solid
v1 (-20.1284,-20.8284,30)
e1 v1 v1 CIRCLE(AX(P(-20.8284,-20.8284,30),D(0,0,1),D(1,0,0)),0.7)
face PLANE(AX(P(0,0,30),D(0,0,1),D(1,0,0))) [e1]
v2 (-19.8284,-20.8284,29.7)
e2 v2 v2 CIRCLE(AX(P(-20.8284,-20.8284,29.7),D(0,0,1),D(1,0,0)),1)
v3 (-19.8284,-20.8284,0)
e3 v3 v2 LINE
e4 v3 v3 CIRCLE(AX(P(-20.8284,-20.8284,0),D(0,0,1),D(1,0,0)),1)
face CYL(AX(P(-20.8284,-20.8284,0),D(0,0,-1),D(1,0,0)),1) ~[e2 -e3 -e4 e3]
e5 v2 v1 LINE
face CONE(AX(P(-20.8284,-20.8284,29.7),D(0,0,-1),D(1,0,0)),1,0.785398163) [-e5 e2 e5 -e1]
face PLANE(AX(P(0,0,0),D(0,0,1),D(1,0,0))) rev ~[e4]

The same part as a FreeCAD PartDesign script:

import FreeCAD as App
import Part
import Sketcher
from FreeCAD import Vector
Q = App.Units.Quantity


def edges_at(feature, points):
    """Names of the edges that pass closest to the given points."""
    edges = feature.Shape.Edges
    near = lambda p: min(range(len(edges)), key=lambda i: edges[i].distToShape(Part.Vertex(*p))[0])
    return sorted({f"Edge{near(p) + 1}" for p in points})

doc = App.newDocument("Part")
body = doc.addObject("PartDesign::Body", "Body")

# Sketch on XY plane
sketch1 = body.newObject("Sketcher::SketchObject", "Sketch")
sketch1.AttachmentSupport = (doc.getObject("XY_Plane"), [""])
sketch1.MapMode = "FlatFace"
sketch1.addGeometry(Part.Circle(Vector(-20.8, -20.8, 0), Vector(0, 0, 1), 1), False)
sketch1.addConstraint(Sketcher.Constraint("Diameter", 0, Q("2 mm")))
sketch1.addConstraint(Sketcher.Constraint("DistanceX", 0, 3, -1, 1, Q("20.8284 mm")))
sketch1.addConstraint(Sketcher.Constraint("DistanceY", 0, 3, -1, 1, Q("20.8284 mm")))
pad1 = body.newObject("PartDesign::Pad", "Pad")
pad1.Profile = sketch1
pad1.Length = 30
doc.recompute()

chamfer = body.newObject("PartDesign::Chamfer", "Chamfer")
chamfer.Base = (pad1, edges_at(pad1, [(-21.828, -20.828, 30)]))
chamfer.Size = 0.3

doc.recompute()
